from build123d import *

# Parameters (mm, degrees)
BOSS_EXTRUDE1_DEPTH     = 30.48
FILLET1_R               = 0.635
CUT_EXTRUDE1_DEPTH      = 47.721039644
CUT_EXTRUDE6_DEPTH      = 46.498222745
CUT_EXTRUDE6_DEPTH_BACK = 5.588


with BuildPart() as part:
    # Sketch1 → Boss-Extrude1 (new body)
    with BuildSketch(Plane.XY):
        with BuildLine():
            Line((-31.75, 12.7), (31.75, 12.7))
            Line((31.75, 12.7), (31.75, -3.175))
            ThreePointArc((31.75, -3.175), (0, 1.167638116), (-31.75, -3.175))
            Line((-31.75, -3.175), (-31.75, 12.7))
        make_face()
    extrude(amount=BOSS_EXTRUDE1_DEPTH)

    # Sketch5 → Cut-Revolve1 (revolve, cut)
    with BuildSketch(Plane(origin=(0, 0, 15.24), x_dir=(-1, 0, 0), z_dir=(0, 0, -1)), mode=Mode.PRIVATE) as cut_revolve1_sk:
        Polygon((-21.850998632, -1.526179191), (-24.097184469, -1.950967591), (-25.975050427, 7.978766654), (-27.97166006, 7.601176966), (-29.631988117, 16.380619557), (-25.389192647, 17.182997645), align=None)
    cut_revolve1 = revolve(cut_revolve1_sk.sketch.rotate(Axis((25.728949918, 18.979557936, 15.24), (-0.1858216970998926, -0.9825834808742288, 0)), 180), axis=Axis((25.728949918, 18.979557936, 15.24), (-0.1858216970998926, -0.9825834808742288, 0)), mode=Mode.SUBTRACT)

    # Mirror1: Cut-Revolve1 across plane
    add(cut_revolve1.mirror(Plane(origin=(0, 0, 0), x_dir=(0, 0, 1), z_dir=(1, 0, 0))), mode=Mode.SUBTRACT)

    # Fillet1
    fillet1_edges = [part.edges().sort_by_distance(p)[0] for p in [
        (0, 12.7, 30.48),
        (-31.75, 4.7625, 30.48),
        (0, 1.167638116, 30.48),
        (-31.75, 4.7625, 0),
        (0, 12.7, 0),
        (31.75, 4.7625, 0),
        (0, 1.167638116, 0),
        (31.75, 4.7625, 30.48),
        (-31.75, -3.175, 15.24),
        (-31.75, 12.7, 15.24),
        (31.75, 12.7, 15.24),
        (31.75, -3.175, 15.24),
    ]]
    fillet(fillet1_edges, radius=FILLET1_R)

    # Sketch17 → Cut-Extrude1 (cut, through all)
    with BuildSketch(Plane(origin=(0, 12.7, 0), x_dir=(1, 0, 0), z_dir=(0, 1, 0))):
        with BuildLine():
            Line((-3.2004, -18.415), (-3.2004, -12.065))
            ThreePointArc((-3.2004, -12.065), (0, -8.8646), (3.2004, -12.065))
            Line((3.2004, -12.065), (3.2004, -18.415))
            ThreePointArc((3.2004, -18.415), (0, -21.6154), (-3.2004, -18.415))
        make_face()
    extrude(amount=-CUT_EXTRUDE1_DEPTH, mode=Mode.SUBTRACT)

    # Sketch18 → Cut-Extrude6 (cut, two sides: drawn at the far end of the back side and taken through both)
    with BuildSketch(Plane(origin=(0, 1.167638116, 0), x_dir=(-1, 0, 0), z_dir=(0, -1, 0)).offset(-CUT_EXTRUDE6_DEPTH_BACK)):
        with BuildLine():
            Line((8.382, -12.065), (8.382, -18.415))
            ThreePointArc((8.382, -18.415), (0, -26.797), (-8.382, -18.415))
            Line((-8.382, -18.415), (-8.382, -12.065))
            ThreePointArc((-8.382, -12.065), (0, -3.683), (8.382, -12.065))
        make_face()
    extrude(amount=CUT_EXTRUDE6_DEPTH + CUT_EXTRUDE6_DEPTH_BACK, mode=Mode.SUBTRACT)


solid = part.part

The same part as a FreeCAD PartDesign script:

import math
import FreeCAD as App
import Part
import Sketcher
from FreeCAD import Vector
Q = App.Units.Quantity


def edges_at(feature, points):
    """Names of the edges that pass closest to the given points."""
    edges = feature.Shape.Edges
    near = lambda p: min(range(len(edges)), key=lambda i: edges[i].distToShape(Part.Vertex(*p))[0])
    return sorted({f"Edge{near(p) + 1}" for p in points})

doc = App.newDocument("Part")
body = doc.addObject("PartDesign::Body", "Body")

# Sketch on XY plane
sketch1 = doc.addObject("Sketcher::SketchObject", "Sketch")
body.addObject(sketch1)
sketch1.AttachmentSupport = (doc.XY_Plane, [""])
sketch1.MapMode = "FlatFace"
sketch1.addGeometry([
    Part.LineSegment(Vector(32, 13, 0), Vector(-32, 13, 0)),
    Part.LineSegment(Vector(-32, 13, 0), Vector(-32, -3, 0)),
    Part.ArcOfCircle(Part.Circle(Vector(0, -117, 0), Vector(0, 0, 1), 118), math.radians(74), math.radians(106)),
    Part.LineSegment(Vector(32, -3, 0), Vector(32, 13, 0)),
], False)
sketch1.addConstraint([
    Sketcher.Constraint("Coincident", 0, 2, 1, 1),
    Sketcher.Constraint("Coincident", 1, 2, 2, 2),
    Sketcher.Constraint("Coincident", 2, 1, 3, 1),
    Sketcher.Constraint("Coincident", 3, 2, 0, 1),
    Sketcher.Constraint("Horizontal", 0),
    Sketcher.Constraint("Vertical", 1),
    Sketcher.Constraint("Vertical", 3),
    Sketcher.Constraint("Symmetric", 1, 2, 2, 1, -2),
    Sketcher.Constraint("DistanceX", 0, 2, 0, 1, Q("2.5 in")),
    Sketcher.Constraint("Radius", 2, Q("4.655 in")),
    Sketcher.Constraint("DistanceY", -1, 1, 0, 2, Q("0.5 in")),
    Sketcher.Constraint("DistanceY", 1, 2, 1, 1, Q("0.625 in")),
])
pad1 = doc.addObject("PartDesign::Pad", "Pad")
body.addObject(pad1)
pad1.Profile = sketch1
pad1.Length = Q("1.2 in")

# Sketch on XY plane
sketch2 = doc.addObject("Sketcher::SketchObject", "Sketch001")
body.addObject(sketch2)
sketch2.AttachmentSupport = (doc.XY_Plane, [""])
sketch2.MapMode = "FlatFace"
sketch2.AttachmentOffset = App.Placement(Vector(0, 0, 0.6 * 25.4), App.Rotation())
sketch2.addGeometry([
    Part.LineSegment(Vector(24.1, -2, 0), Vector(21.9, -1.5, 0)),  # 0
    Part.LineSegment(Vector(21.9, -1.5, 0), Vector(25.4, 17.2, 0)),  # 1
    Part.LineSegment(Vector(25.4, 17.2, 0), Vector(29.6, 16.4, 0)),  # 2
    Part.LineSegment(Vector(29.6, 16.4, 0), Vector(28, 7.6, 0)),  # 3
    Part.LineSegment(Vector(28, 7.6, 0), Vector(26, 8, 0)),  # 4
    Part.LineSegment(Vector(26, 8, 0), Vector(24.1, -2, 0)),  # 5
], False)
sketch2.addGeometry(Part.LineSegment(Vector(25.4, 17.2, 0), Vector(21.9, -1.5, 0)), True)  # axis
sketch2.addConstraint([
    Sketcher.Constraint("Coincident", 0, 2, 1, 1),
    Sketcher.Constraint("Coincident", 1, 2, 2, 1),
    Sketcher.Constraint("Coincident", 2, 2, 3, 1),
    Sketcher.Constraint("Coincident", 3, 2, 4, 1),
    Sketcher.Constraint("Coincident", 4, 2, 5, 1),
    Sketcher.Constraint("Coincident", 5, 2, 0, 1),
    Sketcher.Constraint("Coincident", 6, 1, 1, 2),
    Sketcher.Constraint("Coincident", 6, 2, 0, 2),
    Sketcher.Constraint("Perpendicular", 0, 1),
    Sketcher.Constraint("Perpendicular", 1, 2),
    Sketcher.Constraint("Perpendicular", 2, 3),
    Sketcher.Constraint("Perpendicular", 3, 4),
    Sketcher.Constraint("Perpendicular", 4, 5),
    Sketcher.Constraint("Distance", 0, Q("0.09 in")),
    Sketcher.Constraint("Distance", 2, Q("0.17 in")),
    Sketcher.Constraint("Distance", 1, Q("19.040801 mm")),
    Sketcher.Constraint("DistanceX", -1, 1, 0, 2, Q("21.850999 mm")),
    Sketcher.Constraint("DistanceY", 0, 2, 2, 2, Q("17.906799 mm")),
    Sketcher.Constraint("Distance", 3, Q("8.93506 mm")),
    Sketcher.Constraint("DistanceY", 0, 2, -1, 1, Q("1.526179 mm")),
])
groove = doc.addObject("PartDesign::Groove", "Groove")
body.addObject(groove)
groove.Profile = sketch2
groove.ReferenceAxis = (sketch2, ["Axis0"])
groove.Angle = 360
doc.recompute()

mirrored = doc.addObject("PartDesign::Mirrored", "Mirrored")
body.addObject(mirrored)
mirrored.Originals = [groove]
mirrored.MirrorPlane = (doc.YZ_Plane, [""])
body.Tip = mirrored
doc.recompute()

fillet = doc.addObject("PartDesign::Fillet", "Fillet")
body.addObject(fillet)
fillet.Base = (mirrored, edges_at(mirrored, [
    (0, 12.7, 30.48),
    (-31.75, 4.763, 30.48),
    (0, 1.168, 30.48),
    (-31.75, 4.763, 0),
    (0, 12.7, 0),
    (31.75, 4.763, 0),
    (0, 1.168, 0),
    (31.75, 4.763, 30.48),
    (-31.75, -3.175, 15.24),
    (-31.75, 12.7, 15.24),
    (31.75, 12.7, 15.24),
    (31.75, -3.175, 15.24),
]))
fillet.Radius = Q("0.025 in")

# Sketch on XZ plane
sketch3 = doc.addObject("Sketcher::SketchObject", "Sketch002")
body.addObject(sketch3)
sketch3.AttachmentSupport = (doc.XZ_Plane, [""])
sketch3.MapMode = "FlatFace"
sketch3.AttachmentOffset = App.Placement(Vector(0, 0, -0.5 * 25.4), App.Rotation())
sketch3.addGeometry([
    Part.LineSegment(Vector(-3.2, 12.1, 0), Vector(-3.2, 18.4, 0)),
    Part.ArcOfCircle(Part.Circle(Vector(0, 18.4, 0), Vector(0, 0, 1), 3.2), math.radians(0), math.radians(180)),
    Part.LineSegment(Vector(3.2, 18.4, 0), Vector(3.2, 12.1, 0)),
    Part.ArcOfCircle(Part.Circle(Vector(0, 12.1, 0), Vector(0, 0, 1), 3.2), math.radians(180), math.radians(360)),
], False)
sketch3.addConstraint([
    Sketcher.Constraint("Tangent", 0, 2, 1, 2),
    Sketcher.Constraint("Tangent", 1, 1, 2, 1),
    Sketcher.Constraint("Tangent", 2, 2, 3, 2),
    Sketcher.Constraint("Tangent", 3, 1, 0, 1),
    Sketcher.Constraint("Vertical", 0),
    Sketcher.Constraint("Vertical", 2),
    Sketcher.Constraint("PointOnObject", 1, 3, -2),
    Sketcher.Constraint("Radius", 1, Q("0.126 in")),
    Sketcher.Constraint("DistanceY", 0, 1, 0, 2, Q("0.25 in")),
    Sketcher.Constraint("DistanceY", -1, 1, 1, 3, Q("0.725 in")),
])
pocket1 = doc.addObject("PartDesign::Pocket", "Pocket")
body.addObject(pocket1)
pocket1.Profile = sketch3
pocket1.Type = "ThroughAll"
pocket1.Reversed = True

# Sketch on XZ plane
sketch4 = doc.addObject("Sketcher::SketchObject", "Sketch003")
body.addObject(sketch4)
sketch4.AttachmentSupport = (doc.XZ_Plane, [""])
sketch4.MapMode = "FlatFace"
sketch4.AttachmentOffset = App.Placement(Vector(0, 0, -1.167638), App.Rotation())
sketch4.addGeometry([
    Part.LineSegment(Vector(-8, 18, 0), Vector(-8, 12, 0)),
    Part.ArcOfCircle(Part.Circle(Vector(0, 12, 0), Vector(0, 0, 1), 8), math.radians(180), math.radians(360)),
    Part.LineSegment(Vector(8, 12, 0), Vector(8, 18, 0)),
    Part.ArcOfCircle(Part.Circle(Vector(0, 18, 0), Vector(0, 0, 1), 8), math.radians(0), math.radians(180)),
], False)
sketch4.addConstraint([
    Sketcher.Constraint("Tangent", 0, 2, 1, 1),
    Sketcher.Constraint("Tangent", 1, 2, 2, 1),
    Sketcher.Constraint("Tangent", 2, 2, 3, 1),
    Sketcher.Constraint("Tangent", 3, 2, 0, 1),
    Sketcher.Constraint("Vertical", 0),
    Sketcher.Constraint("Vertical", 2),
    Sketcher.Constraint("PointOnObject", 1, 3, -2),
    Sketcher.Constraint("Radius", 1, Q("0.33 in")),
    Sketcher.Constraint("DistanceY", 0, 2, 0, 1, Q("0.25 in")),
    Sketcher.Constraint("DistanceY", -1, 1, 1, 3, Q("0.475 in")),
])
pocket2 = doc.addObject("PartDesign::Pocket", "Pocket001")
body.addObject(pocket2)
pocket2.Profile = sketch4
pocket2.Type = "TwoLengths"
pocket2.Length = 46.498223
pocket2.Length2 = Q("0.22 in")
pocket2.Reversed = True

doc.recompute()
